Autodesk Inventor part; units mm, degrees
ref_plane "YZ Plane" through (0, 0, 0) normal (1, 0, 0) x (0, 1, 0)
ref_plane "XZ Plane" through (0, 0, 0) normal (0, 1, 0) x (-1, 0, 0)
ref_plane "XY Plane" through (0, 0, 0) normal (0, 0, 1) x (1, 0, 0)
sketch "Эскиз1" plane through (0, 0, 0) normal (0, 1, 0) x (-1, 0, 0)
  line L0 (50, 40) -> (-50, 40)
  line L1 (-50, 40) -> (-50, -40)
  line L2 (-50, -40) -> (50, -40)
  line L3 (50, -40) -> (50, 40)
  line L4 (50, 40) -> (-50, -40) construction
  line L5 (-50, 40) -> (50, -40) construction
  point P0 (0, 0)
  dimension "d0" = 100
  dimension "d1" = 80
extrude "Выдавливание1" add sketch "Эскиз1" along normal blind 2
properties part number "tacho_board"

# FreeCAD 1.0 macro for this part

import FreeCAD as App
import Part
import Sketcher
from FreeCAD import Vector
Q = App.Units.Quantity

doc = App.newDocument("Part")
body = doc.addObject("PartDesign::Body", "Body")

# Sketch on XZ plane
sketch1 = body.newObject("Sketcher::SketchObject", "Sketch")
sketch1.AttachmentSupport = (doc.getObject("XZ_Plane"), [""])
sketch1.MapMode = "FlatFace"
sketch1.addGeometry([
    Part.LineSegment(Vector(-50, -40, 0), Vector(-50, 40, 0)),
    Part.LineSegment(Vector(-50, 40, 0), Vector(50, 40, 0)),
    Part.LineSegment(Vector(50, 40, 0), Vector(50, -40, 0)),
    Part.LineSegment(Vector(50, -40, 0), Vector(-50, -40, 0)),
], False)
sketch1.addConstraint([
    Sketcher.Constraint("Coincident", 0, 2, 1, 1),
    Sketcher.Constraint("Coincident", 1, 2, 2, 1),
    Sketcher.Constraint("Coincident", 2, 2, 3, 1),
    Sketcher.Constraint("Coincident", 3, 2, 0, 1),
    Sketcher.Constraint("Vertical", 0),
    Sketcher.Constraint("Horizontal", 1),
    Sketcher.Constraint("Vertical", 2),
    Sketcher.Constraint("Horizontal", 3),
    Sketcher.Constraint("Symmetric", 0, 2, 2, 2, -1, 1),
    Sketcher.Constraint("DistanceX", 1, 1, 1, 2, Q("100 mm")),
    Sketcher.Constraint("DistanceY", 0, 1, 0, 2, Q("80 mm")),
])
pad1 = body.newObject("PartDesign::Pad", "Pad")
pad1.Profile = sketch1
pad1.Length = 2
pad1.Reversed = True

doc.recompute()
